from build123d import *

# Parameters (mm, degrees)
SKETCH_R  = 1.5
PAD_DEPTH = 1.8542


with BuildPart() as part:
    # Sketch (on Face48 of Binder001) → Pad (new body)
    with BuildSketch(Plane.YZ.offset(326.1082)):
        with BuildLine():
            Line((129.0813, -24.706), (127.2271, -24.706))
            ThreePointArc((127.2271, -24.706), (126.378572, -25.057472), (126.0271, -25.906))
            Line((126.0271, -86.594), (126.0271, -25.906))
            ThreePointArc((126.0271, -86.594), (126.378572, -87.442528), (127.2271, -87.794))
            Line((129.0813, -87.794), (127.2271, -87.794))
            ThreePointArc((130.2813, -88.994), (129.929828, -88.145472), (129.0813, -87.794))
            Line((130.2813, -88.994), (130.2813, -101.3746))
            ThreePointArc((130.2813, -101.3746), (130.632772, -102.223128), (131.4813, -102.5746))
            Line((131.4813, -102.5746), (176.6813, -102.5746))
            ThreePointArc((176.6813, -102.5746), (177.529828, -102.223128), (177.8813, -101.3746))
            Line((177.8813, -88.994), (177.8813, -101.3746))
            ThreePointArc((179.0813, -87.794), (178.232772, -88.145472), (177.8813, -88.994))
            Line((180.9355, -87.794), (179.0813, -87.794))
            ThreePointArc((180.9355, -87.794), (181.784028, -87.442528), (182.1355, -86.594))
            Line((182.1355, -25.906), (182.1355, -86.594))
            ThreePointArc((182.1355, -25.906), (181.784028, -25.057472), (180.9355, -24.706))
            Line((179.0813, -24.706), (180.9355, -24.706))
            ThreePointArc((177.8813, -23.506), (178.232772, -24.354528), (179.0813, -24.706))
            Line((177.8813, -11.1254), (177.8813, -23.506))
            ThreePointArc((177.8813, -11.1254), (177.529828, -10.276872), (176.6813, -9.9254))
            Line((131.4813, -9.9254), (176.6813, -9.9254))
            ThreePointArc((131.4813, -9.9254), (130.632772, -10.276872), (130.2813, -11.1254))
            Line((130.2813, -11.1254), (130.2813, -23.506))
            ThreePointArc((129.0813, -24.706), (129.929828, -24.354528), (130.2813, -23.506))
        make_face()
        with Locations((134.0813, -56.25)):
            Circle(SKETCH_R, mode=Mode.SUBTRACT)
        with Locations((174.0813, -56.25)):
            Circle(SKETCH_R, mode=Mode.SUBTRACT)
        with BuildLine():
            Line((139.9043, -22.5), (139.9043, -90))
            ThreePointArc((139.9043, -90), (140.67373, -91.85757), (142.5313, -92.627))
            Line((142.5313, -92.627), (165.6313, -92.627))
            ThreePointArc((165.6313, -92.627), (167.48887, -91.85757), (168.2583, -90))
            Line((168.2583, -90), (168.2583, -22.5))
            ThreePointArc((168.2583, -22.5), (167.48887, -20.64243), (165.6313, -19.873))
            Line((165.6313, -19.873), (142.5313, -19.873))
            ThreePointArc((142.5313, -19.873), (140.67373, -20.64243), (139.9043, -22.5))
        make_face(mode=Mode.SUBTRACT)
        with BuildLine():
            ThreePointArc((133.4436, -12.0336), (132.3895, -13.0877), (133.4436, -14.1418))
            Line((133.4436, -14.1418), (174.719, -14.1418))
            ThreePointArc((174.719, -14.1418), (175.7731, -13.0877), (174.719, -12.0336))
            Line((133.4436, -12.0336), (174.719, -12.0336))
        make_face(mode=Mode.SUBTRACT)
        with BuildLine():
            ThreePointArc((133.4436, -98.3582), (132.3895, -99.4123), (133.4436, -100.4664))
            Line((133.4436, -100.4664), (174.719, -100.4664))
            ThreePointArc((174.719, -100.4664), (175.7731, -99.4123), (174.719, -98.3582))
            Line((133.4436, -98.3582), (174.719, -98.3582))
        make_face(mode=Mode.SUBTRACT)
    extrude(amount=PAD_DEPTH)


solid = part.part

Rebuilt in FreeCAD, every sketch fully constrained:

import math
import FreeCAD as App
import Part
import Sketcher
from FreeCAD import Vector
Q = App.Units.Quantity

doc = App.newDocument("Part")
body = doc.addObject("PartDesign::Body", "Body")

sketch1 = body.newObject("Sketcher::SketchObject", "Sketch")
sketch1.AttachmentSupport = (doc.getObject("YZ_Plane"), [""])
sketch1.MapMode = "FlatFace"
sketch1.AttachmentOffset = App.Placement(Vector(0, 0, 326.1082), App.Rotation())
sketch1.addGeometry([
    Part.LineSegment(Vector(129.0813, -24.706, 0), Vector(127.2271, -24.706, 0)),
    Part.ArcOfCircle(Part.Circle(Vector(127.2271, -25.906, 0), Vector(0, 0, 1), 1.2), math.radians(90.000022), math.radians(179.999978)),
    Part.LineSegment(Vector(126.0271, -25.906, 0), Vector(126.0271, -86.594, 0)),
    Part.ArcOfCircle(Part.Circle(Vector(127.2271, -86.594, 0), Vector(0, 0, 1), 1.2), math.radians(-179.999978), math.radians(-90.000022)),
    Part.LineSegment(Vector(127.2271, -87.794, 0), Vector(129.0813, -87.794, 0)),
    Part.ArcOfCircle(Part.Circle(Vector(129.0813, -88.994, 0), Vector(0, 0, 1), 1.2), math.radians(0.000022), math.radians(89.999978)),
    Part.LineSegment(Vector(130.2813, -88.994, 0), Vector(130.2813, -101.3746, 0)),
    Part.ArcOfCircle(Part.Circle(Vector(131.4813, -101.3746, 0), Vector(0, 0, 1), 1.2), math.radians(-179.999978), math.radians(-90.000022)),
    Part.LineSegment(Vector(131.4813, -102.5746, 0), Vector(176.6813, -102.5746, 0)),
    Part.ArcOfCircle(Part.Circle(Vector(176.6813, -101.3746, 0), Vector(0, 0, 1), 1.2), math.radians(-89.999978), math.radians(-0.000022)),
    Part.LineSegment(Vector(177.8813, -101.3746, 0), Vector(177.8813, -88.994, 0)),
    Part.ArcOfCircle(Part.Circle(Vector(179.0813, -88.994, 0), Vector(0, 0, 1), 1.2), math.radians(90.000022), math.radians(179.999978)),
    Part.LineSegment(Vector(179.0813, -87.794, 0), Vector(180.9355, -87.794, 0)),
    Part.ArcOfCircle(Part.Circle(Vector(180.9355, -86.594, 0), Vector(0, 0, 1), 1.2), math.radians(-89.999978), math.radians(-0.000022)),
    Part.LineSegment(Vector(182.1355, -86.594, 0), Vector(182.1355, -25.906, 0)),
    Part.ArcOfCircle(Part.Circle(Vector(180.9355, -25.906, 0), Vector(0, 0, 1), 1.2), math.radians(0.000022), math.radians(89.999978)),
    Part.LineSegment(Vector(180.9355, -24.706, 0), Vector(179.0813, -24.706, 0)),
    Part.ArcOfCircle(Part.Circle(Vector(179.0813, -23.506, 0), Vector(0, 0, 1), 1.2), math.radians(-179.999978), math.radians(-90.000022)),
    Part.LineSegment(Vector(177.8813, -23.506, 0), Vector(177.8813, -11.1254, 0)),
    Part.ArcOfCircle(Part.Circle(Vector(176.6813, -11.1254, 0), Vector(0, 0, 1), 1.2), math.radians(0.000022), math.radians(89.999978)),
    Part.LineSegment(Vector(176.6813, -9.9254, 0), Vector(131.4813, -9.9254, 0)),
    Part.ArcOfCircle(Part.Circle(Vector(131.4813, -11.1254, 0), Vector(0, 0, 1), 1.2), math.radians(90.000022), math.radians(179.999978)),
    Part.LineSegment(Vector(130.2813, -11.1254, 0), Vector(130.2813, -23.506, 0)),
    Part.ArcOfCircle(Part.Circle(Vector(129.0813, -23.506, 0), Vector(0, 0, 1), 1.2), math.radians(-89.999978), math.radians(-0.000022)),
    Part.Circle(Vector(134.0813, -56.25, 0), Vector(0, 0, 1), 1.5),
    Part.ArcOfCircle(Part.Circle(Vector(133.4436, -99.4123, 0), Vector(0, 0, 1), 1.0541), math.radians(90), math.radians(270)),
    Part.LineSegment(Vector(133.4436, -98.3582, 0), Vector(174.719, -98.3582, 0)),
    Part.ArcOfCircle(Part.Circle(Vector(174.719, -99.4123, 0), Vector(0, 0, 1), 1.0541), math.radians(-90), math.radians(90)),
    Part.LineSegment(Vector(174.719, -100.4664, 0), Vector(133.4436, -100.4664, 0)),
    Part.Circle(Vector(174.0813, -56.25, 0), Vector(0, 0, 1), 1.5),
    Part.LineSegment(Vector(139.9043, -90, 0), Vector(139.9043, -22.5, 0)),
    Part.ArcOfCircle(Part.Circle(Vector(142.531298, -22.499998, 0), Vector(0, 0, 1), 2.626998), math.radians(89.999964), math.radians(180.000036)),
    Part.LineSegment(Vector(142.5313, -19.873, 0), Vector(165.6313, -19.873, 0)),
    Part.ArcOfCircle(Part.Circle(Vector(165.631302, -22.499998, 0), Vector(0, 0, 1), 2.626998), math.radians(-0.000036), math.radians(90.000036)),
    Part.LineSegment(Vector(168.2583, -22.5, 0), Vector(168.2583, -90, 0)),
    Part.ArcOfCircle(Part.Circle(Vector(165.631302, -90.000002, 0), Vector(0, 0, 1), 2.626998), math.radians(-90.000036), math.radians(0.000036)),
    Part.LineSegment(Vector(165.6313, -92.627, 0), Vector(142.5313, -92.627, 0)),
    Part.ArcOfCircle(Part.Circle(Vector(142.531298, -90.000002, 0), Vector(0, 0, 1), 2.626998), math.radians(179.999964), math.radians(270.000036)),
    Part.ArcOfCircle(Part.Circle(Vector(133.4436, -13.0877, 0), Vector(0, 0, 1), 1.0541), math.radians(90), math.radians(270)),
    Part.LineSegment(Vector(133.4436, -12.0336, 0), Vector(174.719, -12.0336, 0)),
    Part.ArcOfCircle(Part.Circle(Vector(174.719, -13.0877, 0), Vector(0, 0, 1), 1.0541), math.radians(-90), math.radians(90)),
    Part.LineSegment(Vector(174.719, -14.1418, 0), Vector(133.4436, -14.1418, 0)),
], False)
sketch1.addConstraint([
    Sketcher.Constraint("Tangent", 0, 2, 1, 1),
    Sketcher.Constraint("Tangent", 1, 2, 2, 1),
    Sketcher.Constraint("Tangent", 2, 2, 3, 1),
    Sketcher.Constraint("Tangent", 3, 2, 4, 1),
    Sketcher.Constraint("Tangent", 4, 2, 5, 2),
    Sketcher.Constraint("Tangent", 5, 1, 6, 1),
    Sketcher.Constraint("Tangent", 6, 2, 7, 1),
    Sketcher.Constraint("Tangent", 7, 2, 8, 1),
    Sketcher.Constraint("Tangent", 8, 2, 9, 1),
    Sketcher.Constraint("Tangent", 9, 2, 10, 1),
    Sketcher.Constraint("Tangent", 10, 2, 11, 2),
    Sketcher.Constraint("Tangent", 11, 1, 12, 1),
    Sketcher.Constraint("Tangent", 12, 2, 13, 1),
    Sketcher.Constraint("Tangent", 13, 2, 14, 1),
    Sketcher.Constraint("Tangent", 14, 2, 15, 1),
    Sketcher.Constraint("Tangent", 15, 2, 16, 1),
    Sketcher.Constraint("Tangent", 16, 2, 17, 2),
    Sketcher.Constraint("Tangent", 17, 1, 18, 1),
    Sketcher.Constraint("Tangent", 18, 2, 19, 1),
    Sketcher.Constraint("Tangent", 19, 2, 20, 1),
    Sketcher.Constraint("Tangent", 20, 2, 21, 1),
    Sketcher.Constraint("Tangent", 21, 2, 22, 1),
    Sketcher.Constraint("Tangent", 22, 2, 23, 2),
    Sketcher.Constraint("Tangent", 23, 1, 0, 1),
    Sketcher.Constraint("Tangent", 25, 1, 26, 1),
    Sketcher.Constraint("Tangent", 26, 2, 27, 2),
    Sketcher.Constraint("Tangent", 27, 1, 28, 1),
    Sketcher.Constraint("Tangent", 28, 2, 25, 2),
    Sketcher.Constraint("Tangent", 30, 2, 31, 2),
    Sketcher.Constraint("Tangent", 31, 1, 32, 1),
    Sketcher.Constraint("Tangent", 32, 2, 33, 2),
    Sketcher.Constraint("Tangent", 33, 1, 34, 1),
    Sketcher.Constraint("Tangent", 34, 2, 35, 2),
    Sketcher.Constraint("Tangent", 35, 1, 36, 1),
    Sketcher.Constraint("Tangent", 36, 2, 37, 2),
    Sketcher.Constraint("Tangent", 37, 1, 30, 1),
    Sketcher.Constraint("Tangent", 38, 1, 39, 1),
    Sketcher.Constraint("Tangent", 39, 2, 40, 2),
    Sketcher.Constraint("Tangent", 40, 1, 41, 1),
    Sketcher.Constraint("Tangent", 41, 2, 38, 2),
    Sketcher.Constraint("Horizontal", 0),
    Sketcher.Constraint("Vertical", 2),
    Sketcher.Constraint("Horizontal", 4),
    Sketcher.Constraint("Vertical", 6),
    Sketcher.Constraint("Horizontal", 8),
    Sketcher.Constraint("Vertical", 10),
    Sketcher.Constraint("Horizontal", 12),
    Sketcher.Constraint("Vertical", 14),
    Sketcher.Constraint("Horizontal", 16),
    Sketcher.Constraint("Vertical", 18),
    Sketcher.Constraint("Horizontal", 20),
    Sketcher.Constraint("Vertical", 22),
    Sketcher.Constraint("Horizontal", 26),
    Sketcher.Constraint("Horizontal", 28),
    Sketcher.Constraint("Vertical", 30),
    Sketcher.Constraint("Horizontal", 32),
    Sketcher.Constraint("Vertical", 34),
    Sketcher.Constraint("Horizontal", 36),
    Sketcher.Constraint("Horizontal", 39),
    Sketcher.Constraint("Horizontal", 41),
    Sketcher.Constraint("Equal", 1, 3),
    Sketcher.Constraint("Equal", 3, 5),
    Sketcher.Constraint("Equal", 5, 7),
    Sketcher.Constraint("Equal", 7, 9),
    Sketcher.Constraint("Equal", 9, 11),
    Sketcher.Constraint("Equal", 11, 13),
    Sketcher.Constraint("Equal", 13, 15),
    Sketcher.Constraint("Equal", 15, 17),
    Sketcher.Constraint("Equal", 17, 19),
    Sketcher.Constraint("Equal", 19, 21),
    Sketcher.Constraint("Equal", 21, 23),
    Sketcher.Constraint("Equal", 24, 29),
    Sketcher.Constraint("Equal", 31, 33),
    Sketcher.Constraint("Equal", 33, 35),
    Sketcher.Constraint("Equal", 35, 37),
    Sketcher.Constraint("Equal", 27, 38),
    Sketcher.Constraint("Horizontal", 5, 3, 11, 3),
    Sketcher.Constraint("Horizontal", 1, 3, 15, 3),
    Sketcher.Constraint("Horizontal", 24, 3, 29, 3),
    Sketcher.Constraint("Vertical", 11, 3, 17, 3),
    Sketcher.Constraint("Vertical", 7, 3, 21, 3),
    Sketcher.Constraint("Vertical", 25, 3, 38, 3),
    Sketcher.Constraint("Vertical", 27, 3, 40, 3),
    Sketcher.Constraint("Equal", 4, 12),
    Sketcher.Constraint("Equal", 10, 18),
    Sketcher.Constraint("Diameter", 24, Q("3 mm")),
    Sketcher.Constraint("Radius", 1, Q("1.2 mm")),
    Sketcher.Constraint("DistanceX", 8, 1, 8, 2, Q("45.2 mm")),
    Sketcher.Constraint("DistanceX", 32, 1, 32, 2, Q("23.1 mm")),
    Sketcher.Constraint("DistanceY", 30, 1, 30, 2, Q("67.5 mm")),
    Sketcher.Constraint("DistanceY", 35, 3, -1, 1, Q("90.000002 mm")),
    Sketcher.Constraint("Radius", 31, Q("2.626998 mm")),
    Sketcher.Constraint("Radius", 25, Q("1.0541 mm")),
    Sketcher.Constraint("DistanceY", 2, 2, 2, 1, Q("60.688 mm")),
    Sketcher.Constraint("DistanceY", 24, 3, -1, 1, Q("56.25 mm")),
    Sketcher.Constraint("DistanceX", 0, 2, 0, 1, Q("1.8542 mm")),
    Sketcher.Constraint("DistanceX", 26, 1, 26, 2, Q("41.2754 mm")),
    Sketcher.Constraint("DistanceY", 6, 2, 6, 1, Q("12.3806 mm")),
    Sketcher.Constraint("DistanceY", 1, 3, -1, 1, Q("25.906 mm")),
    Sketcher.Constraint("DistanceX", -1, 1, 27, 3, Q("174.719 mm")),
    Sketcher.Constraint("DistanceX", -1, 1, 1, 3, Q("127.2271 mm")),
    Sketcher.Constraint("DistanceX", -1, 1, 24, 3, Q("134.0813 mm")),
    Sketcher.Constraint("DistanceY", 25, 3, -1, 1, Q("99.4123 mm")),
    Sketcher.Constraint("DistanceX", -1, 1, 29, 3, Q("174.0813 mm")),
    Sketcher.Constraint("DistanceX", -1, 1, 31, 3, Q("142.531298 mm")),
    Sketcher.Constraint("DistanceY", 38, 3, -1, 1, Q("13.0877 mm")),
])
pad1 = body.newObject("PartDesign::Pad", "Pad")
pad1.Profile = sketch1
pad1.Length = 1.8542

doc.recompute()
